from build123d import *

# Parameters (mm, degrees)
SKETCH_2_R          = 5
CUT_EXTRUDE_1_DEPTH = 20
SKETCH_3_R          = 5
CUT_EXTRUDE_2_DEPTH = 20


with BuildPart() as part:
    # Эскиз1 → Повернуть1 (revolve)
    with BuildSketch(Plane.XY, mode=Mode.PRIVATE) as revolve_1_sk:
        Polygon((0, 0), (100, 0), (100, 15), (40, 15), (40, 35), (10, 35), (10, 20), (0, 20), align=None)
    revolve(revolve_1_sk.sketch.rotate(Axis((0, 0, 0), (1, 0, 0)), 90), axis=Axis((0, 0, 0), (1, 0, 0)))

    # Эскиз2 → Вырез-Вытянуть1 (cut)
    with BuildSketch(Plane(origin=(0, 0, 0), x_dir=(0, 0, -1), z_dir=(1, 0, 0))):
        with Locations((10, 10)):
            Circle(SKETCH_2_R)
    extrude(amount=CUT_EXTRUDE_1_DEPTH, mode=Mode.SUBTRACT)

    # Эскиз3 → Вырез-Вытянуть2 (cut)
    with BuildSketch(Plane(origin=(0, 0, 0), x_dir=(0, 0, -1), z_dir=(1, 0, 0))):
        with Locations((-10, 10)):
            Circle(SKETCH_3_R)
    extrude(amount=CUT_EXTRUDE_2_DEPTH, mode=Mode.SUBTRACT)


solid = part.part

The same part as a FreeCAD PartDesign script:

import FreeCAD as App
import Part
import Sketcher

V = App.Vector


def add_polygon(sketch, points):
    """Adds a closed chain of lines whose ends are joined by coincident constraints."""
    first, n = sketch.GeometryCount, len(points)
    for a, b in zip(points, points[1:] + points[:1]):
        sketch.addGeometry(Part.LineSegment(App.Vector(*a, 0), App.Vector(*b, 0)), False)
    for i in range(n):
        sketch.addConstraint(Sketcher.Constraint("Coincident", first + i, 2, first + (i + 1) % n, 1))

doc = App.newDocument("Part")
body = doc.addObject("PartDesign::Body", "Body")

sketch1 = doc.addObject("Sketcher::SketchObject", "Sketch")
body.addObject(sketch1)
sketch1.AttachmentSupport = (doc.XY_Plane, [""])
sketch1.MapMode = "FlatFace"
add_polygon(sketch1, [(0, 0), (100, 0), (100, 15), (40, 15), (40, 35), (10, 35), (10, 20), (0, 20)])
sketch1.addConstraint([
    Sketcher.Constraint("Horizontal", 0),
    Sketcher.Constraint("Vertical", 1),
    Sketcher.Constraint("Horizontal", 2),
    Sketcher.Constraint("Vertical", 3),
    Sketcher.Constraint("Horizontal", 4),
    Sketcher.Constraint("Vertical", 5),
    Sketcher.Constraint("Horizontal", 6),
    Sketcher.Constraint("Vertical", 7),
    Sketcher.Constraint("Coincident", 7, 2, -1, 1),
    Sketcher.Constraint("Equal", 1, 5),
    Sketcher.Constraint("DistanceX", 0, 1, 0, 2, 100.0),
    Sketcher.Constraint("DistanceX", 2, 2, 2, 1, 60.0),
    Sketcher.Constraint("DistanceX", 4, 2, 4, 1, 30.0),
    Sketcher.Constraint("DistanceY", 1, 1, 1, 2, 15.0),
    Sketcher.Constraint("DistanceY", 3, 1, 3, 2, 20.0),
])
revolution = doc.addObject("PartDesign::Revolution", "Revolution")
body.addObject(revolution)
revolution.Profile = sketch1
revolution.ReferenceAxis = (sketch1, ["H_Axis"])
revolution.Angle = 360

sketch2 = doc.addObject("Sketcher::SketchObject", "Sketch001")
body.addObject(sketch2)
sketch2.AttachmentSupport = (doc.YZ_Plane, [""])
sketch2.MapMode = "FlatFace"
sketch2.addGeometry(Part.Circle(V(10, -10, 0), V(0, 0, 1), 5), False)
sketch2.addConstraint([
    Sketcher.Constraint("Diameter", 0, 10.0),
    Sketcher.Constraint("DistanceX", -1, 1, 0, 3, 10.0),
    Sketcher.Constraint("DistanceY", 0, 3, -1, 1, 10.0),
])
pocket1 = doc.addObject("PartDesign::Pocket", "Pocket")
body.addObject(pocket1)
pocket1.Profile = sketch2
pocket1.Length = 20
pocket1.Reversed = True

sketch3 = doc.addObject("Sketcher::SketchObject", "Sketch002")
body.addObject(sketch3)
sketch3.AttachmentSupport = (doc.YZ_Plane, [""])
sketch3.MapMode = "FlatFace"
sketch3.addGeometry(Part.Circle(V(10, 10, 0), V(0, 0, 1), 5), False)
sketch3.addConstraint([
    Sketcher.Constraint("Diameter", 0, 10.0),
    Sketcher.Constraint("DistanceX", -1, 1, 0, 3, 10.0),
    Sketcher.Constraint("DistanceY", -1, 1, 0, 3, 10.0),
])
pocket2 = doc.addObject("PartDesign::Pocket", "Pocket001")
body.addObject(pocket2)
pocket2.Profile = sketch3
pocket2.Length = 20
pocket2.Reversed = True

doc.recompute()
